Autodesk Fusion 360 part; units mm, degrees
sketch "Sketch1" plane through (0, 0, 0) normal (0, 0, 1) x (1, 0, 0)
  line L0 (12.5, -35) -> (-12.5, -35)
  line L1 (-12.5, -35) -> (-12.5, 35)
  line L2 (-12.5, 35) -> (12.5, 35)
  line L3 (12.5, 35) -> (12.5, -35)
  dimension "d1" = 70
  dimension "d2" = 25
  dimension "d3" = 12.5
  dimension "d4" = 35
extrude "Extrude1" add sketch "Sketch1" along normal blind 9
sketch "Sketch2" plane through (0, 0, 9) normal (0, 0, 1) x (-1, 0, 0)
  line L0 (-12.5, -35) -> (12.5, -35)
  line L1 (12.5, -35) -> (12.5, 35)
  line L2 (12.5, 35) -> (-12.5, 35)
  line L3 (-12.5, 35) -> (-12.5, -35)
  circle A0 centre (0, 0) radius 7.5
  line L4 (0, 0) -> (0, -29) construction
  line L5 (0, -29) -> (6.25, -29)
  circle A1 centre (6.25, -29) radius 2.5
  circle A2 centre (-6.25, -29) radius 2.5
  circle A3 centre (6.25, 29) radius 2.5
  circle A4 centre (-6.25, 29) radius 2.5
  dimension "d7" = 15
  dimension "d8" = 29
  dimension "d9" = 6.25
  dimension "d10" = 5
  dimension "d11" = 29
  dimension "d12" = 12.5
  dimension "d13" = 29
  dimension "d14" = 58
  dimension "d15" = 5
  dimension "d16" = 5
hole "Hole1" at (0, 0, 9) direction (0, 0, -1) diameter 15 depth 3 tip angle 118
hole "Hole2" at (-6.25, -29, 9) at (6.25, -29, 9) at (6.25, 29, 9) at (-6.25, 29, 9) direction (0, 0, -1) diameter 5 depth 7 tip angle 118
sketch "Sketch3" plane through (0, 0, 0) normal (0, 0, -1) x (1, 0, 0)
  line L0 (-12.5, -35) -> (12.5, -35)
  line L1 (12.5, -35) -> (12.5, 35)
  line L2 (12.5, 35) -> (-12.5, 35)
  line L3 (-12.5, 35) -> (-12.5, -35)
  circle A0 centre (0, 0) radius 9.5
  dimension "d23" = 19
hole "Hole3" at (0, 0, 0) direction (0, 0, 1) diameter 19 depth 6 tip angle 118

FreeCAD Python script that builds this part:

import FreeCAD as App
import Part
import Sketcher

V = App.Vector


def add_polygon(sketch, points):
    """Adds a closed chain of lines whose ends are joined by coincident constraints."""
    first, n = sketch.GeometryCount, len(points)
    for a, b in zip(points, points[1:] + points[:1]):
        sketch.addGeometry(Part.LineSegment(App.Vector(*a, 0), App.Vector(*b, 0)), False)
    for i in range(n):
        sketch.addConstraint(Sketcher.Constraint("Coincident", first + i, 2, first + (i + 1) % n, 1))

doc = App.newDocument("Part")
body = doc.addObject("PartDesign::Body", "Body")

# Sketch on XY plane
sketch1 = doc.addObject("Sketcher::SketchObject", "Sketch")
body.addObject(sketch1)
sketch1.AttachmentSupport = (doc.XY_Plane, [""])
sketch1.MapMode = "FlatFace"
add_polygon(sketch1, [(-12, -35), (12, -35), (12, 35), (-12, 35)])  # lines 0-3
sketch1.addConstraint([
    Sketcher.Constraint("Horizontal", 0),
    Sketcher.Constraint("Vertical", 1),
    Sketcher.Constraint("Horizontal", 2),
    Sketcher.Constraint("Vertical", 3),
    Sketcher.Constraint("Symmetric", 0, 2, 2, 2, -1, 1),
    Sketcher.Constraint("DistanceX", 0, 1, 0, 2, 25.0),
    Sketcher.Constraint("DistanceY", 1, 1, 1, 2, 70.0),
])
pad1 = doc.addObject("PartDesign::Pad", "Pad")
body.addObject(pad1)
pad1.Profile = sketch1
pad1.Length = 9

# Sketch on XY plane
sketch2 = doc.addObject("Sketcher::SketchObject", "Sketch001")
body.addObject(sketch2)
sketch2.AttachmentSupport = (doc.XY_Plane, [""])
sketch2.MapMode = "FlatFace"
sketch2.AttachmentOffset = App.Placement(V(0, 0, 9), App.Rotation())
sketch2.addGeometry(Part.Circle(V(0, 0, 0), V(0, 0, 1), 8), False)
sketch2.addConstraint([
    Sketcher.Constraint("Coincident", 0, 3, -1, 1),
    Sketcher.Constraint("Diameter", 0, 15.0),
])
doc.recompute()
hole = doc.addObject("PartDesign::Hole", "Hole")
body.addObject(hole)
hole.Profile = sketch2
hole.ThreadType = "None"
hole.Diameter = 15
hole.DepthType = "Dimension"
hole.Depth = 3
hole.DrillPoint = "Angled"
hole.DrillPointAngle = 118

# Sketch on XY plane
sketch3 = doc.addObject("Sketcher::SketchObject", "Sketch002")
body.addObject(sketch3)
sketch3.AttachmentSupport = (doc.XY_Plane, [""])
sketch3.MapMode = "FlatFace"
sketch3.AttachmentOffset = App.Placement(V(0, 0, 9), App.Rotation())
sketch3.addGeometry([
    Part.Circle(V(-6.2, -29, 0), V(0, 0, 1), 2.5),
    Part.Circle(V(6.2, -29, 0), V(0, 0, 1), 2.5),
    Part.Circle(V(6.2, 29, 0), V(0, 0, 1), 2.5),
    Part.Circle(V(-6.2, 29, 0), V(0, 0, 1), 2.5),
], False)
sketch3.addConstraint([
    Sketcher.Constraint("Equal", 0, 1),
    Sketcher.Constraint("Equal", 1, 2),
    Sketcher.Constraint("Equal", 2, 3),
    Sketcher.Constraint("Symmetric", 0, 3, 2, 3, -1, 1),
    Sketcher.Constraint("Symmetric", 1, 3, 3, 3, -1, 1),
    Sketcher.Constraint("Symmetric", 0, 3, 1, 3, -2),
    Sketcher.Constraint("Diameter", 0, 5.0),
    Sketcher.Constraint("DistanceY", 0, 3, -1, 1, 29.0),
    Sketcher.Constraint("DistanceX", 0, 3, 1, 3, 12.5),
])
doc.recompute()
hole2 = doc.addObject("PartDesign::Hole", "Hole001")
body.addObject(hole2)
hole2.Profile = sketch3
hole2.ThreadType = "None"
hole2.Diameter = 5
hole2.DepthType = "Dimension"
hole2.Depth = 7
hole2.DrillPoint = "Angled"
hole2.DrillPointAngle = 118

# Sketch on XY plane
sketch4 = doc.addObject("Sketcher::SketchObject", "Sketch003")
body.addObject(sketch4)
sketch4.AttachmentSupport = (doc.XY_Plane, [""])
sketch4.MapMode = "FlatFace"
sketch4.addGeometry(Part.Circle(V(0, 0, 0), V(0, 0, 1), 10), False)
sketch4.addConstraint([
    Sketcher.Constraint("Coincident", 0, 3, -1, 1),
    Sketcher.Constraint("Diameter", 0, 19.0),
])
doc.recompute()
hole3 = doc.addObject("PartDesign::Hole", "Hole002")
body.addObject(hole3)
hole3.Profile = sketch4
hole3.ThreadType = "None"
hole3.Diameter = 19
hole3.DepthType = "Dimension"
hole3.Depth = 6
hole3.DrillPoint = "Angled"
hole3.DrillPointAngle = 118
hole3.Reversed = True

doc.recompute()
